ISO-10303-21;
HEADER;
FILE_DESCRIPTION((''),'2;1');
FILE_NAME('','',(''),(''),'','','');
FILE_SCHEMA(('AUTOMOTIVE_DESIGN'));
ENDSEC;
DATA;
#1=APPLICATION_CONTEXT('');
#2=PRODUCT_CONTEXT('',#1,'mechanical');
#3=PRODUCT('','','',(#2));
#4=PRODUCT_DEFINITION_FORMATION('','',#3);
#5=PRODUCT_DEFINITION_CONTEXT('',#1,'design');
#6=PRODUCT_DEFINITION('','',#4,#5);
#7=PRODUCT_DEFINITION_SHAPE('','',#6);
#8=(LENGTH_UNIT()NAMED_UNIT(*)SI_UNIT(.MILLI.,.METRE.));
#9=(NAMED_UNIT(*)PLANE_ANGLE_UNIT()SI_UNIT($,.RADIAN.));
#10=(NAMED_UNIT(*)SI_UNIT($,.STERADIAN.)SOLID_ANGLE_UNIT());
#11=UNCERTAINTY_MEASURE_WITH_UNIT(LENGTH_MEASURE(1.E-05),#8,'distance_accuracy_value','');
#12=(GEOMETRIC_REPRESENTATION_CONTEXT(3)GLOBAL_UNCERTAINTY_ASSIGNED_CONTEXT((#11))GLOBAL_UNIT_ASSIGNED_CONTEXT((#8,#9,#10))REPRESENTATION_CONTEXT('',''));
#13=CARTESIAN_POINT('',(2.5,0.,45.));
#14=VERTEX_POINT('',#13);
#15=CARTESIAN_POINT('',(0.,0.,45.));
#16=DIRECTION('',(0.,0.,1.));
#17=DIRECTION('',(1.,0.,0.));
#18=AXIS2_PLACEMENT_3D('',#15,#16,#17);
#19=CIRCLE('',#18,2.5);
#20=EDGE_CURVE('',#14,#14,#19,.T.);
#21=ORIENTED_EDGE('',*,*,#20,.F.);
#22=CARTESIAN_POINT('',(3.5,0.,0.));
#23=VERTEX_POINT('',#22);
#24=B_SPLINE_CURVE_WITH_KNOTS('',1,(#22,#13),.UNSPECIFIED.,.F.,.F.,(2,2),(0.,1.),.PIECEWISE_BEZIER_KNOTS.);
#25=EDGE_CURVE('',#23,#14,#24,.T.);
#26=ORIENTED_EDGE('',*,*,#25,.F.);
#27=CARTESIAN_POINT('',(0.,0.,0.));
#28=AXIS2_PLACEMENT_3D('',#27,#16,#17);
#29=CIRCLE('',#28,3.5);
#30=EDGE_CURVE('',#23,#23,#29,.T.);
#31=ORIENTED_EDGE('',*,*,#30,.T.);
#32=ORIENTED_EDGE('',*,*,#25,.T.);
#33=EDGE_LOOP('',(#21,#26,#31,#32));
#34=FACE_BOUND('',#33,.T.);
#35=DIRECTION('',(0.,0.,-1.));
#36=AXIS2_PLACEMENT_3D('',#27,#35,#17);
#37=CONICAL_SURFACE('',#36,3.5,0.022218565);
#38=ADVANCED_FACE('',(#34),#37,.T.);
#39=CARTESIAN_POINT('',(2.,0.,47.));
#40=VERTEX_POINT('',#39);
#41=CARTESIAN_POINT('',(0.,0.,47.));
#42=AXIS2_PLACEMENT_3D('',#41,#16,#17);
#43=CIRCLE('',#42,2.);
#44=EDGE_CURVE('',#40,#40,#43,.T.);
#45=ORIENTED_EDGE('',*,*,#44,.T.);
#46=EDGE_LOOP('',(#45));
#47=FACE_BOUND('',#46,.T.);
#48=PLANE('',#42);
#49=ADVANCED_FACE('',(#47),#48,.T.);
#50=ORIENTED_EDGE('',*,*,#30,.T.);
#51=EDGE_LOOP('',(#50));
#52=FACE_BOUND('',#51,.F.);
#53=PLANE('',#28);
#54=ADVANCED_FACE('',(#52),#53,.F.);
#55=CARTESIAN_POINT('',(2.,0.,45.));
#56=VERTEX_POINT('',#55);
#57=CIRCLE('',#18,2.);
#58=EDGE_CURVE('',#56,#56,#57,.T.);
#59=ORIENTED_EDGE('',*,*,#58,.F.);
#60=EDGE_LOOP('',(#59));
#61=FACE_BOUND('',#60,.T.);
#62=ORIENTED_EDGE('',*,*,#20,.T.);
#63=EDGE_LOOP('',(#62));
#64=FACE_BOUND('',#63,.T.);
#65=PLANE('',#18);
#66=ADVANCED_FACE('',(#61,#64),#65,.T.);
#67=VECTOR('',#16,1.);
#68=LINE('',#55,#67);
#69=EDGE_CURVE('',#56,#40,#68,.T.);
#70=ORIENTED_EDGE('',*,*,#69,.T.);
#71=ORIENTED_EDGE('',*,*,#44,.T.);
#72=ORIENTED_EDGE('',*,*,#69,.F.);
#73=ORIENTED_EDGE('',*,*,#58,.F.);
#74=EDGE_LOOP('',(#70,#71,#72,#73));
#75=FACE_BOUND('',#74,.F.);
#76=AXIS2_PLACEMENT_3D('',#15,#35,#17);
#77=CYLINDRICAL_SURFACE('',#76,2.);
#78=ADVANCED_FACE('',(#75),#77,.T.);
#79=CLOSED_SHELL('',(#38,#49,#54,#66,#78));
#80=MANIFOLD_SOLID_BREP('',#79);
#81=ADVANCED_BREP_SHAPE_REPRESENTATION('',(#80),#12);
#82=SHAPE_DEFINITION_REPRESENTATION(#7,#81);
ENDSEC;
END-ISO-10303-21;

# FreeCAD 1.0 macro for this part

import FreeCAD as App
import Part
import Sketcher

V = App.Vector

doc = App.newDocument("Part")
body = doc.addObject("PartDesign::Body", "Body")

sketch1 = body.newObject("Sketcher::SketchObject", "Sketch")
sketch1.AttachmentSupport = (doc.getObject("XY_Plane"), [""])
sketch1.MapMode = "FlatFace"
sketch1.addGeometry(Part.Circle(V(0, 0, 0), V(0, 0, 1), 3.5), False)
sketch1.addConstraint(Sketcher.Constraint("Coincident", 0, 3, -1, 1))
sketch1.addConstraint(Sketcher.Constraint("Diameter", 0, 7.0))

sketch2 = body.newObject("Sketcher::SketchObject", "Sketch001")
sketch2.AttachmentSupport = (doc.getObject("XY_Plane"), [""])
sketch2.MapMode = "FlatFace"
sketch2.AttachmentOffset = App.Placement(V(0, 0, 45), App.Rotation())
sketch2.addGeometry(Part.Circle(V(0, 0, 0), V(0, 0, 1), 2.5), False)
sketch2.addConstraint(Sketcher.Constraint("Coincident", 0, 3, -1, 1))
sketch2.addConstraint(Sketcher.Constraint("Diameter", 0, 5.0))

additiveloft = body.newObject("PartDesign::AdditiveLoft", "AdditiveLoft")
additiveloft.Profile = sketch1
additiveloft.Sections = [sketch2]

sketch3 = body.newObject("Sketcher::SketchObject", "Sketch002")
sketch3.AttachmentSupport = (doc.getObject("XY_Plane"), [""])
sketch3.MapMode = "FlatFace"
sketch3.AttachmentOffset = App.Placement(V(0, 0, 45), App.Rotation())
sketch3.addGeometry(Part.Circle(V(0, 0, 0), V(0, 0, 1), 2), False)
sketch3.addConstraint(Sketcher.Constraint("Coincident", 0, 3, -1, 1))
sketch3.addConstraint(Sketcher.Constraint("Diameter", 0, 4.0))
pad1 = body.newObject("PartDesign::Pad", "Pad")
pad1.Profile = sketch3
pad1.Length = 2

doc.recompute()
